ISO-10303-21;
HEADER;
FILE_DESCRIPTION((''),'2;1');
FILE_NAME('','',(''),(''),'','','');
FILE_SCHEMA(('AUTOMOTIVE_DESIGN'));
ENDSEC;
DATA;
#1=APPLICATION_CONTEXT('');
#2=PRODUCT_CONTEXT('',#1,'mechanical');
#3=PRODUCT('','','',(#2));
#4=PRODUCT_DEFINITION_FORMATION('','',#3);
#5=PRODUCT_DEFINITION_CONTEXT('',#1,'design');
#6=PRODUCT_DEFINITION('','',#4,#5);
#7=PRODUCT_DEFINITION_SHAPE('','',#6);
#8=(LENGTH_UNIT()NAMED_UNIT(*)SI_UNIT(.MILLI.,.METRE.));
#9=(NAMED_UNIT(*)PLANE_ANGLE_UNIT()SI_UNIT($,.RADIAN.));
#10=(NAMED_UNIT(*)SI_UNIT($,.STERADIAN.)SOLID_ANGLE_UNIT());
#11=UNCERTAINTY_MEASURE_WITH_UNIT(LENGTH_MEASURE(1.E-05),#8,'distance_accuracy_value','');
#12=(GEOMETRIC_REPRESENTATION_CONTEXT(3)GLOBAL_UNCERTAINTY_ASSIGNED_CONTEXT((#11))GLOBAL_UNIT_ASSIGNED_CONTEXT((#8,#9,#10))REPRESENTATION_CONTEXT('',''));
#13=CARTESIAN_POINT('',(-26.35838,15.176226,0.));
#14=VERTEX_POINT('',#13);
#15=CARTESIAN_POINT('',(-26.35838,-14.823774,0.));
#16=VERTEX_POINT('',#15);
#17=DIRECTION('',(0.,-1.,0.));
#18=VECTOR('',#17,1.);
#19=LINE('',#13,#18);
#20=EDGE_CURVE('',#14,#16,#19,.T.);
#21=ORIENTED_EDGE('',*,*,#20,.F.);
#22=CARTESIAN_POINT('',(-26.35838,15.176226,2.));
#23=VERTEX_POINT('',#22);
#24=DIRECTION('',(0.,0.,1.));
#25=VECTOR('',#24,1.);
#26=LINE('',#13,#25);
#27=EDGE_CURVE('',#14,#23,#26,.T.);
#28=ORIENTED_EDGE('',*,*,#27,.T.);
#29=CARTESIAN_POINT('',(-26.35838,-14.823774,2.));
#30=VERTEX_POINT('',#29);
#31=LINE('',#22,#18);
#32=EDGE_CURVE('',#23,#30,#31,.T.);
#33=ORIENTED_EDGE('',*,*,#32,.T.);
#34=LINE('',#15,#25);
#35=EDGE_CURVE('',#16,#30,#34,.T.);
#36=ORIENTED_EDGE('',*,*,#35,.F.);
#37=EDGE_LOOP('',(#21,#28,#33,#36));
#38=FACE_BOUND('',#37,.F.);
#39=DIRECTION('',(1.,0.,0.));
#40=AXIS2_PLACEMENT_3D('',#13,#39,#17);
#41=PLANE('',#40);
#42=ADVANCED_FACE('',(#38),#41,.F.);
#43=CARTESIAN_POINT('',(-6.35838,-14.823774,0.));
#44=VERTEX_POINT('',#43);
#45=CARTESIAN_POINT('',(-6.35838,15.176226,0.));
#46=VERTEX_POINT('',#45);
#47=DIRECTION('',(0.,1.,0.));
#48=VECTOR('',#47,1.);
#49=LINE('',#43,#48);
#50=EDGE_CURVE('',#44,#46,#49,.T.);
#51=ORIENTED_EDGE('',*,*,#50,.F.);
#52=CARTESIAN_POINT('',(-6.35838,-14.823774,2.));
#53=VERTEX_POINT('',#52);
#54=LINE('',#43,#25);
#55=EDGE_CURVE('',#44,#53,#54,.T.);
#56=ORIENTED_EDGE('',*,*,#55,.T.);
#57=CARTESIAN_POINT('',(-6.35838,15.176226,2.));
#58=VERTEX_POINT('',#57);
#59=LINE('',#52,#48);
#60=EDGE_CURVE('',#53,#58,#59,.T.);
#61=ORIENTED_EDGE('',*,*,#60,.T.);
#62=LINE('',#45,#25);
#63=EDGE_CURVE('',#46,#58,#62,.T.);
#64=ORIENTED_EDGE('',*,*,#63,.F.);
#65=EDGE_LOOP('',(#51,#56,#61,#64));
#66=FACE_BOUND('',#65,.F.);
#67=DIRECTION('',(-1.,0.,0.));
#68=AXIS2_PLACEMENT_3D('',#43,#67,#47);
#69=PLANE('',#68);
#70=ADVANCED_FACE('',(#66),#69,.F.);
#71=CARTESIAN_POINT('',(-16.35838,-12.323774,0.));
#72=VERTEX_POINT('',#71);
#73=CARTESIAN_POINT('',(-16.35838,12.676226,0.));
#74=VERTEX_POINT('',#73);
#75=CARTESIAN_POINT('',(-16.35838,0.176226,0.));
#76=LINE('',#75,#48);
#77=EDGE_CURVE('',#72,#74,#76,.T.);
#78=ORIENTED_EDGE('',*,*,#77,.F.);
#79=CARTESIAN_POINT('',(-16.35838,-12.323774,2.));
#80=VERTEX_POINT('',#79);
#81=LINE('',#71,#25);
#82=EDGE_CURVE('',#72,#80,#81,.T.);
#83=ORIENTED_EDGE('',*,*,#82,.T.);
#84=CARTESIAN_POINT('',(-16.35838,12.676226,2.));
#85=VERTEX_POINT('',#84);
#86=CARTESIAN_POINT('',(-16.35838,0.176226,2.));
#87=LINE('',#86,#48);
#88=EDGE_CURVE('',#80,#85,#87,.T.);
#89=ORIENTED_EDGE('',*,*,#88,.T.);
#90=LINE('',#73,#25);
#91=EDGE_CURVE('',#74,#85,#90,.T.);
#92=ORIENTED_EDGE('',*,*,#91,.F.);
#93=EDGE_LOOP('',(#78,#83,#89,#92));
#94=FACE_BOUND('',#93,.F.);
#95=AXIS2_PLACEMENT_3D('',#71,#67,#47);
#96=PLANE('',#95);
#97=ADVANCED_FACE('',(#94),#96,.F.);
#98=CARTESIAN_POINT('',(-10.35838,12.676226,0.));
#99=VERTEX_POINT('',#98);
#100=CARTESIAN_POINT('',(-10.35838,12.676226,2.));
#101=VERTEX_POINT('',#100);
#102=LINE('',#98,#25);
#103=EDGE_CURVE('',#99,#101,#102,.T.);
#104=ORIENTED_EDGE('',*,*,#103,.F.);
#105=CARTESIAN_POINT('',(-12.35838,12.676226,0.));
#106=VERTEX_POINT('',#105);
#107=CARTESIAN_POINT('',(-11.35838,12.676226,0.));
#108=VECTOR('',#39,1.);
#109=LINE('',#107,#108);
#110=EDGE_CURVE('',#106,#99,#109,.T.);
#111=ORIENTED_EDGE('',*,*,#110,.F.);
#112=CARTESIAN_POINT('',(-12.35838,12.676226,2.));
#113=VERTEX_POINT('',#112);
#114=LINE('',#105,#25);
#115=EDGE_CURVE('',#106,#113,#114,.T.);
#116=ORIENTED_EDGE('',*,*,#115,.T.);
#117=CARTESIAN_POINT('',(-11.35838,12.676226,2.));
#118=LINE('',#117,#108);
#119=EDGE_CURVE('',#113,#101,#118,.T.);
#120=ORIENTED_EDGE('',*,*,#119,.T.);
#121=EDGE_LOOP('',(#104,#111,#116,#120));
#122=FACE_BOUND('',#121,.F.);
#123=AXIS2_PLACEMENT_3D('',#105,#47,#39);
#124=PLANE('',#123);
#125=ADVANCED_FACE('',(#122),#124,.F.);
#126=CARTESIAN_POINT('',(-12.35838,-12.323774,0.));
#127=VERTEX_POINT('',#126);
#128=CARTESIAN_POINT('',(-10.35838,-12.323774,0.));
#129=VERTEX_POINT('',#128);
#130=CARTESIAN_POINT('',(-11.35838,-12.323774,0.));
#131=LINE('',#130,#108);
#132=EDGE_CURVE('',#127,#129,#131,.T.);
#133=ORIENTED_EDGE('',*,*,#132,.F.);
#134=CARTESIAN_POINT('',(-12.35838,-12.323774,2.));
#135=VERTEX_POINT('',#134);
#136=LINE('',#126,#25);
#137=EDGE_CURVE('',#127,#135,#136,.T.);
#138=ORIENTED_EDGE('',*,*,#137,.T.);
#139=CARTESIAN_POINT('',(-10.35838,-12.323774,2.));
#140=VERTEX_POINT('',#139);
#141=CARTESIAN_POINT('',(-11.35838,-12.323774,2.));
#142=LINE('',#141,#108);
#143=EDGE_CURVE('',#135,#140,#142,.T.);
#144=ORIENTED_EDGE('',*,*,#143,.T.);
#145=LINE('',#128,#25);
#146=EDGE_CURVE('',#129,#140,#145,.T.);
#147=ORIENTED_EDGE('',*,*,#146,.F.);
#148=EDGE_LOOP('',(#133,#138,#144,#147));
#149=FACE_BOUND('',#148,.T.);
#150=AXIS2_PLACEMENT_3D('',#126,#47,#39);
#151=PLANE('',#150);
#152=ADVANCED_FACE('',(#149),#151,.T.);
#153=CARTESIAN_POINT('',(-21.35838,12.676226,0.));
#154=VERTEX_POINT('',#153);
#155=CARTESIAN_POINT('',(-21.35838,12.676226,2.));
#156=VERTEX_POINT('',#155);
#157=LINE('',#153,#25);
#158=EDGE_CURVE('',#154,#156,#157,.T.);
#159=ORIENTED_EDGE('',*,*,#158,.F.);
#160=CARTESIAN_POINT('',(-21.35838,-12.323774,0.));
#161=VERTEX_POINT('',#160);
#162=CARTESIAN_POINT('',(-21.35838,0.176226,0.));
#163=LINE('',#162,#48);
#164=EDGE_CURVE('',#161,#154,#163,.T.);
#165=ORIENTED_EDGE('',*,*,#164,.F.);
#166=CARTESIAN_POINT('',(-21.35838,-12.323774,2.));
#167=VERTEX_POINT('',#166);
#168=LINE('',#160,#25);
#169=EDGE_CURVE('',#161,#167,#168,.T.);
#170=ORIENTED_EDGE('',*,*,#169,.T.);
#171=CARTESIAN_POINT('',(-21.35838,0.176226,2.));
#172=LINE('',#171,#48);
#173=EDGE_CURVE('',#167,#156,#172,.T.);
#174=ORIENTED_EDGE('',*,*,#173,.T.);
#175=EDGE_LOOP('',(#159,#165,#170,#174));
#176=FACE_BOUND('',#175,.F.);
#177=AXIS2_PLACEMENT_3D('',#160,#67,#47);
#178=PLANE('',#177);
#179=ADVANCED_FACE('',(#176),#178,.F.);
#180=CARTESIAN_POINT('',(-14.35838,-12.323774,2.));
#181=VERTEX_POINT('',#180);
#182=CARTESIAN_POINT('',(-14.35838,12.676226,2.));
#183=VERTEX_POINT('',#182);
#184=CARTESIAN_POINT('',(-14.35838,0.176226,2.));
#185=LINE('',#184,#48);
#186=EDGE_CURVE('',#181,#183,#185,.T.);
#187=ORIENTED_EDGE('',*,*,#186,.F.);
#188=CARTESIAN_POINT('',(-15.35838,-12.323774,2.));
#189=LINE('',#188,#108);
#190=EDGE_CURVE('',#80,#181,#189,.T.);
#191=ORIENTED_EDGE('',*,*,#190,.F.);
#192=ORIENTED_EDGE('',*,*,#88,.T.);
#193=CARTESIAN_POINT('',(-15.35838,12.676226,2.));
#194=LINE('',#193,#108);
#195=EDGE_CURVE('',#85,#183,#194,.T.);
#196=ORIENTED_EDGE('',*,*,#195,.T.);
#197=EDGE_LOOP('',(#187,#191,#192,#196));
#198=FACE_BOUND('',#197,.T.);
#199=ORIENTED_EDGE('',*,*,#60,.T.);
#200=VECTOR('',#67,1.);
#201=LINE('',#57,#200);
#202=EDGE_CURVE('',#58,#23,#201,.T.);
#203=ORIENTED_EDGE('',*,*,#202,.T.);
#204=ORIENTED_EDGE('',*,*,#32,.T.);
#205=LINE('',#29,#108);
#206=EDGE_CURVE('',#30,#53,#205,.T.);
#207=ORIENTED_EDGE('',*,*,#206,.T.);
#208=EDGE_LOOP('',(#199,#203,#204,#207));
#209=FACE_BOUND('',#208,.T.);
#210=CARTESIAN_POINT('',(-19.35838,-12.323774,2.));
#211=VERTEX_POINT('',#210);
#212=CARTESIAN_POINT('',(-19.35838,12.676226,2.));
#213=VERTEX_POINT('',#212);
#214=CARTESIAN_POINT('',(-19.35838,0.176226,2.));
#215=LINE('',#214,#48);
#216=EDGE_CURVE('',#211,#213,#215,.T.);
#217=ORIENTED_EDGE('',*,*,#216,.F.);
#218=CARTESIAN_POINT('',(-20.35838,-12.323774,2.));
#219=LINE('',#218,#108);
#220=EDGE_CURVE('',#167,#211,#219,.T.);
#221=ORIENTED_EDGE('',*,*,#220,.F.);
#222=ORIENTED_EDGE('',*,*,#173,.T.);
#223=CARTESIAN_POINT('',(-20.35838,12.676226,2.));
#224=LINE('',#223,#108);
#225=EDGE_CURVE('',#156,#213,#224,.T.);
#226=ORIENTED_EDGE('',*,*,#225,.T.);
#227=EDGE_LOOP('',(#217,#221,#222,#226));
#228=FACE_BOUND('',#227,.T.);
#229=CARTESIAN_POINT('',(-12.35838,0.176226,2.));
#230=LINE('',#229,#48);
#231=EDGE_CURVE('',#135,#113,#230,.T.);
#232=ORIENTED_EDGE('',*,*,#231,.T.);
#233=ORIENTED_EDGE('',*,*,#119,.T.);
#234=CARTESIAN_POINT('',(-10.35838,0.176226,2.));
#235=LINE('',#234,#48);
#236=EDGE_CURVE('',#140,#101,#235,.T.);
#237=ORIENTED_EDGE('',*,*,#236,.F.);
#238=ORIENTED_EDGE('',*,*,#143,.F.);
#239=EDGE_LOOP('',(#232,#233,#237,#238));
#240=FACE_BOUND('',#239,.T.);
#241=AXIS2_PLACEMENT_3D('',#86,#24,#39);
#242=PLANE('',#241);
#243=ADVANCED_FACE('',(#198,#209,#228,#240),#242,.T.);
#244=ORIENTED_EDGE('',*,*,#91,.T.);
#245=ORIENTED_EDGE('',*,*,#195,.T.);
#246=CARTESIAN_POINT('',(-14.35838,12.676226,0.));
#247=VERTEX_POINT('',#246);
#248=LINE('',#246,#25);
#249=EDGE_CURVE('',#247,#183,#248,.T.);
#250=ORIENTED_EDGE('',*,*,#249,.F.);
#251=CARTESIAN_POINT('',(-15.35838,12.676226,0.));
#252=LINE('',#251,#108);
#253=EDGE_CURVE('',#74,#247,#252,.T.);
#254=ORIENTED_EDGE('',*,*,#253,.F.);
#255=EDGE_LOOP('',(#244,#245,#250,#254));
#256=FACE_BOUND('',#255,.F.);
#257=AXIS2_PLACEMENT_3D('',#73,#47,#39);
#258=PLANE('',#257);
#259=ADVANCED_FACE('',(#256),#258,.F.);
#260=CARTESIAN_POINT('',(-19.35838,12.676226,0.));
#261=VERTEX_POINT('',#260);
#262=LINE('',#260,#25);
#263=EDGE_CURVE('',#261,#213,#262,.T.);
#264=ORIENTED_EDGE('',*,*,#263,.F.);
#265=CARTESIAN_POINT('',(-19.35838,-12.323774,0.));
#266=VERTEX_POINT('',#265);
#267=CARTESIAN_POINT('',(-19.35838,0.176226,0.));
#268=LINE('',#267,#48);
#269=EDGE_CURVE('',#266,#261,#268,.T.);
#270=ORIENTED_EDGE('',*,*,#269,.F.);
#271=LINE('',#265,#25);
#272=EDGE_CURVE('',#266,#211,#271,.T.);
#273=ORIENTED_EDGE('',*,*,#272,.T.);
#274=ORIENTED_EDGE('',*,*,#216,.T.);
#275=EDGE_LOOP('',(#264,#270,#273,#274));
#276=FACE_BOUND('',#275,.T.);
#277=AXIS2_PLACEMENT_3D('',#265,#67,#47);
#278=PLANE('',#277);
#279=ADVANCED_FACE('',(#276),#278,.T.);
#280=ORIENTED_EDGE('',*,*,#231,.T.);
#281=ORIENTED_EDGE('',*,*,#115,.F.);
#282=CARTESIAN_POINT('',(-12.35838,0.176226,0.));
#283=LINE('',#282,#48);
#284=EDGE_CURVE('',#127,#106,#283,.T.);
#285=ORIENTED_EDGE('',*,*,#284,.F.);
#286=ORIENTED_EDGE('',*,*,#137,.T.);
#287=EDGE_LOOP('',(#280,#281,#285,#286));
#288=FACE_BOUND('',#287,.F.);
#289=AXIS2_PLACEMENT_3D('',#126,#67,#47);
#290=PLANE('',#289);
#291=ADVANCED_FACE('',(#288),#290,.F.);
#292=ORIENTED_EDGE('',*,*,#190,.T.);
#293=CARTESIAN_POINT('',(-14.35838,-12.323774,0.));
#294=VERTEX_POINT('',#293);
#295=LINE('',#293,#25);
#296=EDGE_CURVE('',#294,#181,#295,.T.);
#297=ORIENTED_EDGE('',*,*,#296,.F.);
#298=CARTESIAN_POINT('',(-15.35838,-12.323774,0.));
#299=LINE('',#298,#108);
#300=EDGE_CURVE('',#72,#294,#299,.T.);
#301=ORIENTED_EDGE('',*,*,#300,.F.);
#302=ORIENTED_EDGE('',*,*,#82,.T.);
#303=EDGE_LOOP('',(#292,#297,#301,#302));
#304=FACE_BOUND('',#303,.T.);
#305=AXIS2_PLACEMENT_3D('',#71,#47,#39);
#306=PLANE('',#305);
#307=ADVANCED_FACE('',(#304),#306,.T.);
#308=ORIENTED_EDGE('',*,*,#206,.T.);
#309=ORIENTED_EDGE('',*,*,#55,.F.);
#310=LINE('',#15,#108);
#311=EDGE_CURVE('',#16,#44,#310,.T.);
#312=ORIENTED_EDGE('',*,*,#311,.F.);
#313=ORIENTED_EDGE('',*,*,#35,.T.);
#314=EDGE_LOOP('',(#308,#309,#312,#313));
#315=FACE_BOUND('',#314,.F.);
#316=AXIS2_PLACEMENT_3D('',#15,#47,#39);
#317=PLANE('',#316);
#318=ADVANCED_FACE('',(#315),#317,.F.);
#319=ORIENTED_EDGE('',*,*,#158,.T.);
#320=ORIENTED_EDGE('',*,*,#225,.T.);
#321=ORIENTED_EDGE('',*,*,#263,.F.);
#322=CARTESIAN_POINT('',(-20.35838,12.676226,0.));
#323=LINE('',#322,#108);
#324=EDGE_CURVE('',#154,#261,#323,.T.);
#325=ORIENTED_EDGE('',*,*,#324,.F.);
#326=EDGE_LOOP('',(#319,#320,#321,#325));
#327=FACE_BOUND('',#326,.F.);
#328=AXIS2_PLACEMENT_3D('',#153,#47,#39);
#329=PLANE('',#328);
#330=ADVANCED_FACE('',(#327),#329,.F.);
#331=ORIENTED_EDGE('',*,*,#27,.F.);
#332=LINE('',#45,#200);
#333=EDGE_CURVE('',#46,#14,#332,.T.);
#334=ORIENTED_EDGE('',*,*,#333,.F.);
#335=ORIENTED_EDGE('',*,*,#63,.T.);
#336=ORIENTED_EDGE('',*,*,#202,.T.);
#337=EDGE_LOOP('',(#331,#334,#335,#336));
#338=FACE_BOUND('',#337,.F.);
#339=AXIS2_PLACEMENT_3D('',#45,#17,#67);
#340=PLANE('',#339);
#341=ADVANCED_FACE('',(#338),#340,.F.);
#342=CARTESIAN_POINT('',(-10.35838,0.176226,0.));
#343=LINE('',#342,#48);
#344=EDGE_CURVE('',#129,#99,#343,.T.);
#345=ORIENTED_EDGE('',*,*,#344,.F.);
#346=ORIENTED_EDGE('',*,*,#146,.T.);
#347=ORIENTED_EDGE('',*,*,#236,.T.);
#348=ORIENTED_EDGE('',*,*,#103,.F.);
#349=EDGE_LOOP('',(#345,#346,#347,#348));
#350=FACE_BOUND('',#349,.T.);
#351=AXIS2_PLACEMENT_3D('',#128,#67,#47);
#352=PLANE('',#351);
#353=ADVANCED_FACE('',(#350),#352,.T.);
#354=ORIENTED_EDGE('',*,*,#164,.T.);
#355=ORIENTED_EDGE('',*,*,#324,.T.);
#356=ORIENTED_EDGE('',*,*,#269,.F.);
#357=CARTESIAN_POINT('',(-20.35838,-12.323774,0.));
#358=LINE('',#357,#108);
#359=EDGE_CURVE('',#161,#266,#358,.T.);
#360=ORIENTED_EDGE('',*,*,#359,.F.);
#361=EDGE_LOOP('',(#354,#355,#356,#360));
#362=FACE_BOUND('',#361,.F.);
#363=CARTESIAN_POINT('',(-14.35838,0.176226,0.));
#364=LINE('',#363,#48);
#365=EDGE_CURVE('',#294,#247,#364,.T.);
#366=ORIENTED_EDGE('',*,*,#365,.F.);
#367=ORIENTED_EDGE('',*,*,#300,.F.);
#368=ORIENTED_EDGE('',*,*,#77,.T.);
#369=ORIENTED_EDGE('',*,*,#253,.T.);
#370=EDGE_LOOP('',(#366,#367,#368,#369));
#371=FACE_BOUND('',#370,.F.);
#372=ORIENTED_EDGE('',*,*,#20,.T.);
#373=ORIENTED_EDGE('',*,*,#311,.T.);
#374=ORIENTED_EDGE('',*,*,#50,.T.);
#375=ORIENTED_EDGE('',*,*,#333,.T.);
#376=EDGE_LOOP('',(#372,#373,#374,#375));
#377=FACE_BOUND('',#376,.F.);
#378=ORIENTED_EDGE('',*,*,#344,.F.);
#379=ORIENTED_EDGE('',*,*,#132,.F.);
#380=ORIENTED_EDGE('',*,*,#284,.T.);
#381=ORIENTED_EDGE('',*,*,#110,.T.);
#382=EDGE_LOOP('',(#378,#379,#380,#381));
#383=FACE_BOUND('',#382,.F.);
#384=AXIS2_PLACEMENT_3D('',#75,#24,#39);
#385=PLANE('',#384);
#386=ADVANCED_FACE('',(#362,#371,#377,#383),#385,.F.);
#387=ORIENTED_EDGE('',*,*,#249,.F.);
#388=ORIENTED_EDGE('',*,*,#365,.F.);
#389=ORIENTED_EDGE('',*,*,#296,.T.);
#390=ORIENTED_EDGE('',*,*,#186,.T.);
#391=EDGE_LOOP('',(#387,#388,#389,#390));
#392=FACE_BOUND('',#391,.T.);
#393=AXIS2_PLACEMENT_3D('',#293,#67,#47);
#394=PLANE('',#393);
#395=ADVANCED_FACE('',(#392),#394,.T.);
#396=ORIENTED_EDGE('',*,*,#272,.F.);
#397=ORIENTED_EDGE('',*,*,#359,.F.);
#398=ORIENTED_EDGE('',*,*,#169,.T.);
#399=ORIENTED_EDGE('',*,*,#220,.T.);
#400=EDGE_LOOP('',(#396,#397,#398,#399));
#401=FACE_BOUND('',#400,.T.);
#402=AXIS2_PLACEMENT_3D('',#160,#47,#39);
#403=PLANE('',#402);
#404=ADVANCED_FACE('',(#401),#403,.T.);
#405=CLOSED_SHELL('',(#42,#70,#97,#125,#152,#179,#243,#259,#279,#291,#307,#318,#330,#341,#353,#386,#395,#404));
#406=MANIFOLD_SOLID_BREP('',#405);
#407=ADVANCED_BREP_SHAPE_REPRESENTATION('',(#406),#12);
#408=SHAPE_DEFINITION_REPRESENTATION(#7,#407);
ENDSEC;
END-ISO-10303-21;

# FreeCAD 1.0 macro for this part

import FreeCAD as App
import Part
import Sketcher
Q = App.Units.Quantity

doc = App.newDocument("Part")
body = doc.addObject("PartDesign::Body", "Body")

# Sketch on XY plane
sketch1 = body.newObject("Sketcher::SketchObject", "Sketch")
sketch1.AttachmentSupport = (doc.getObject("XY_Plane"), [""])
sketch1.MapMode = "FlatFace"
sketch1.addGeometry(Part.LineSegment(App.Vector(-6.35838, 15.176226, 0), App.Vector(-26.35838, 15.176226, 0)), False)
sketch1.addGeometry(Part.LineSegment(App.Vector(-26.35838, 15.176226, 0), App.Vector(-26.35838, -14.823774, 0)), False)
sketch1.addGeometry(Part.LineSegment(App.Vector(-26.35838, -14.823774, 0), App.Vector(-6.35838, -14.823774, 0)), False)
sketch1.addGeometry(Part.LineSegment(App.Vector(-6.35838, -14.823774, 0), App.Vector(-6.35838, 15.176226, 0)), False)
sketch1.addGeometry(Part.LineSegment(App.Vector(-19.35838, -12.323774, 0), App.Vector(-21.35838, -12.323774, 0)), False)
sketch1.addGeometry(Part.LineSegment(App.Vector(-21.35838, -12.323774, 0), App.Vector(-21.35838, 12.676226, 0)), False)
sketch1.addGeometry(Part.LineSegment(App.Vector(-21.35838, 12.676226, 0), App.Vector(-19.35838, 12.676226, 0)), False)
sketch1.addGeometry(Part.LineSegment(App.Vector(-19.35838, 12.676226, 0), App.Vector(-19.35838, -12.323774, 0)), False)
sketch1.addGeometry(Part.LineSegment(App.Vector(-14.35838, -12.323774, 0), App.Vector(-16.35838, -12.323774, 0)), False)
sketch1.addGeometry(Part.LineSegment(App.Vector(-16.35838, -12.323774, 0), App.Vector(-16.35838, 12.676226, 0)), False)
sketch1.addGeometry(Part.LineSegment(App.Vector(-16.35838, 12.676226, 0), App.Vector(-14.35838, 12.676226, 0)), False)
sketch1.addGeometry(Part.LineSegment(App.Vector(-14.35838, 12.676226, 0), App.Vector(-14.35838, -12.323774, 0)), False)
sketch1.addGeometry(Part.LineSegment(App.Vector(-10.35838, -12.323774, 0), App.Vector(-12.35838, -12.323774, 0)), False)
sketch1.addGeometry(Part.LineSegment(App.Vector(-12.35838, -12.323774, 0), App.Vector(-12.35838, 12.676226, 0)), False)
sketch1.addGeometry(Part.LineSegment(App.Vector(-12.35838, 12.676226, 0), App.Vector(-10.35838, 12.676226, 0)), False)
sketch1.addGeometry(Part.LineSegment(App.Vector(-10.35838, 12.676226, 0), App.Vector(-10.35838, -12.323774, 0)), False)
sketch1.addConstraint(Sketcher.Constraint("Coincident", 0, 2, 1, 1))
sketch1.addConstraint(Sketcher.Constraint("Coincident", 1, 2, 2, 1))
sketch1.addConstraint(Sketcher.Constraint("Coincident", 2, 2, 3, 1))
sketch1.addConstraint(Sketcher.Constraint("Coincident", 3, 2, 0, 1))
sketch1.addConstraint(Sketcher.Constraint("Coincident", 4, 2, 5, 1))
sketch1.addConstraint(Sketcher.Constraint("Coincident", 5, 2, 6, 1))
sketch1.addConstraint(Sketcher.Constraint("Coincident", 6, 2, 7, 1))
sketch1.addConstraint(Sketcher.Constraint("Coincident", 7, 2, 4, 1))
sketch1.addConstraint(Sketcher.Constraint("Coincident", 8, 2, 9, 1))
sketch1.addConstraint(Sketcher.Constraint("Coincident", 9, 2, 10, 1))
sketch1.addConstraint(Sketcher.Constraint("Coincident", 10, 2, 11, 1))
sketch1.addConstraint(Sketcher.Constraint("Coincident", 11, 2, 8, 1))
sketch1.addConstraint(Sketcher.Constraint("Coincident", 12, 2, 13, 1))
sketch1.addConstraint(Sketcher.Constraint("Coincident", 13, 2, 14, 1))
sketch1.addConstraint(Sketcher.Constraint("Coincident", 14, 2, 15, 1))
sketch1.addConstraint(Sketcher.Constraint("Coincident", 15, 2, 12, 1))
sketch1.addConstraint(Sketcher.Constraint("Horizontal", 0))
sketch1.addConstraint(Sketcher.Constraint("Vertical", 1))
sketch1.addConstraint(Sketcher.Constraint("Horizontal", 2))
sketch1.addConstraint(Sketcher.Constraint("Vertical", 3))
sketch1.addConstraint(Sketcher.Constraint("Horizontal", 4))
sketch1.addConstraint(Sketcher.Constraint("Vertical", 5))
sketch1.addConstraint(Sketcher.Constraint("Horizontal", 6))
sketch1.addConstraint(Sketcher.Constraint("Vertical", 7))
sketch1.addConstraint(Sketcher.Constraint("Horizontal", 8))
sketch1.addConstraint(Sketcher.Constraint("Vertical", 9))
sketch1.addConstraint(Sketcher.Constraint("Horizontal", 10))
sketch1.addConstraint(Sketcher.Constraint("Vertical", 11))
sketch1.addConstraint(Sketcher.Constraint("Horizontal", 12))
sketch1.addConstraint(Sketcher.Constraint("Vertical", 13))
sketch1.addConstraint(Sketcher.Constraint("Horizontal", 14))
sketch1.addConstraint(Sketcher.Constraint("Vertical", 15))
sketch1.addConstraint(Sketcher.Constraint("Horizontal", 7, 2, 8, 2))
sketch1.addConstraint(Sketcher.Constraint("Horizontal", 6, 2, 9, 2))
sketch1.addConstraint(Sketcher.Constraint("Horizontal", 11, 2, 12, 2))
sketch1.addConstraint(Sketcher.Constraint("Horizontal", 10, 2, 13, 2))
sketch1.addConstraint(Sketcher.Constraint("Equal", 6, 8))
sketch1.addConstraint(Sketcher.Constraint("Equal", 10, 12))
sketch1.addConstraint(Sketcher.Constraint("DistanceX", 0, 2, 0, 1, Q("20 mm")))
sketch1.addConstraint(Sketcher.Constraint("DistanceX", 4, 2, 4, 1, Q("2 mm")))
sketch1.addConstraint(Sketcher.Constraint("DistanceY", 1, 2, 1, 1, Q("30 mm")))
sketch1.addConstraint(Sketcher.Constraint("DistanceY", 5, 1, 5, 2, Q("25 mm")))
sketch1.addConstraint(Sketcher.Constraint("DistanceX", 1, 2, 4, 2, Q("5 mm")))
sketch1.addConstraint(Sketcher.Constraint("DistanceX", 7, 2, 8, 2, Q("3 mm")))
sketch1.addConstraint(Sketcher.Constraint("DistanceX", 11, 2, 12, 2, Q("2 mm")))
sketch1.addConstraint(Sketcher.Constraint("DistanceY", 1, 2, 4, 2, Q("2.5 mm")))
sketch1.addConstraint(Sketcher.Constraint("DistanceX", 0, 2, -1, 1, Q("26.35838 mm")))
sketch1.addConstraint(Sketcher.Constraint("DistanceY", -1, 1, 0, 2, Q("15.176226 mm")))
pad1 = body.newObject("PartDesign::Pad", "Pad")
pad1.Profile = sketch1
pad1.Length = 2

doc.recompute()
